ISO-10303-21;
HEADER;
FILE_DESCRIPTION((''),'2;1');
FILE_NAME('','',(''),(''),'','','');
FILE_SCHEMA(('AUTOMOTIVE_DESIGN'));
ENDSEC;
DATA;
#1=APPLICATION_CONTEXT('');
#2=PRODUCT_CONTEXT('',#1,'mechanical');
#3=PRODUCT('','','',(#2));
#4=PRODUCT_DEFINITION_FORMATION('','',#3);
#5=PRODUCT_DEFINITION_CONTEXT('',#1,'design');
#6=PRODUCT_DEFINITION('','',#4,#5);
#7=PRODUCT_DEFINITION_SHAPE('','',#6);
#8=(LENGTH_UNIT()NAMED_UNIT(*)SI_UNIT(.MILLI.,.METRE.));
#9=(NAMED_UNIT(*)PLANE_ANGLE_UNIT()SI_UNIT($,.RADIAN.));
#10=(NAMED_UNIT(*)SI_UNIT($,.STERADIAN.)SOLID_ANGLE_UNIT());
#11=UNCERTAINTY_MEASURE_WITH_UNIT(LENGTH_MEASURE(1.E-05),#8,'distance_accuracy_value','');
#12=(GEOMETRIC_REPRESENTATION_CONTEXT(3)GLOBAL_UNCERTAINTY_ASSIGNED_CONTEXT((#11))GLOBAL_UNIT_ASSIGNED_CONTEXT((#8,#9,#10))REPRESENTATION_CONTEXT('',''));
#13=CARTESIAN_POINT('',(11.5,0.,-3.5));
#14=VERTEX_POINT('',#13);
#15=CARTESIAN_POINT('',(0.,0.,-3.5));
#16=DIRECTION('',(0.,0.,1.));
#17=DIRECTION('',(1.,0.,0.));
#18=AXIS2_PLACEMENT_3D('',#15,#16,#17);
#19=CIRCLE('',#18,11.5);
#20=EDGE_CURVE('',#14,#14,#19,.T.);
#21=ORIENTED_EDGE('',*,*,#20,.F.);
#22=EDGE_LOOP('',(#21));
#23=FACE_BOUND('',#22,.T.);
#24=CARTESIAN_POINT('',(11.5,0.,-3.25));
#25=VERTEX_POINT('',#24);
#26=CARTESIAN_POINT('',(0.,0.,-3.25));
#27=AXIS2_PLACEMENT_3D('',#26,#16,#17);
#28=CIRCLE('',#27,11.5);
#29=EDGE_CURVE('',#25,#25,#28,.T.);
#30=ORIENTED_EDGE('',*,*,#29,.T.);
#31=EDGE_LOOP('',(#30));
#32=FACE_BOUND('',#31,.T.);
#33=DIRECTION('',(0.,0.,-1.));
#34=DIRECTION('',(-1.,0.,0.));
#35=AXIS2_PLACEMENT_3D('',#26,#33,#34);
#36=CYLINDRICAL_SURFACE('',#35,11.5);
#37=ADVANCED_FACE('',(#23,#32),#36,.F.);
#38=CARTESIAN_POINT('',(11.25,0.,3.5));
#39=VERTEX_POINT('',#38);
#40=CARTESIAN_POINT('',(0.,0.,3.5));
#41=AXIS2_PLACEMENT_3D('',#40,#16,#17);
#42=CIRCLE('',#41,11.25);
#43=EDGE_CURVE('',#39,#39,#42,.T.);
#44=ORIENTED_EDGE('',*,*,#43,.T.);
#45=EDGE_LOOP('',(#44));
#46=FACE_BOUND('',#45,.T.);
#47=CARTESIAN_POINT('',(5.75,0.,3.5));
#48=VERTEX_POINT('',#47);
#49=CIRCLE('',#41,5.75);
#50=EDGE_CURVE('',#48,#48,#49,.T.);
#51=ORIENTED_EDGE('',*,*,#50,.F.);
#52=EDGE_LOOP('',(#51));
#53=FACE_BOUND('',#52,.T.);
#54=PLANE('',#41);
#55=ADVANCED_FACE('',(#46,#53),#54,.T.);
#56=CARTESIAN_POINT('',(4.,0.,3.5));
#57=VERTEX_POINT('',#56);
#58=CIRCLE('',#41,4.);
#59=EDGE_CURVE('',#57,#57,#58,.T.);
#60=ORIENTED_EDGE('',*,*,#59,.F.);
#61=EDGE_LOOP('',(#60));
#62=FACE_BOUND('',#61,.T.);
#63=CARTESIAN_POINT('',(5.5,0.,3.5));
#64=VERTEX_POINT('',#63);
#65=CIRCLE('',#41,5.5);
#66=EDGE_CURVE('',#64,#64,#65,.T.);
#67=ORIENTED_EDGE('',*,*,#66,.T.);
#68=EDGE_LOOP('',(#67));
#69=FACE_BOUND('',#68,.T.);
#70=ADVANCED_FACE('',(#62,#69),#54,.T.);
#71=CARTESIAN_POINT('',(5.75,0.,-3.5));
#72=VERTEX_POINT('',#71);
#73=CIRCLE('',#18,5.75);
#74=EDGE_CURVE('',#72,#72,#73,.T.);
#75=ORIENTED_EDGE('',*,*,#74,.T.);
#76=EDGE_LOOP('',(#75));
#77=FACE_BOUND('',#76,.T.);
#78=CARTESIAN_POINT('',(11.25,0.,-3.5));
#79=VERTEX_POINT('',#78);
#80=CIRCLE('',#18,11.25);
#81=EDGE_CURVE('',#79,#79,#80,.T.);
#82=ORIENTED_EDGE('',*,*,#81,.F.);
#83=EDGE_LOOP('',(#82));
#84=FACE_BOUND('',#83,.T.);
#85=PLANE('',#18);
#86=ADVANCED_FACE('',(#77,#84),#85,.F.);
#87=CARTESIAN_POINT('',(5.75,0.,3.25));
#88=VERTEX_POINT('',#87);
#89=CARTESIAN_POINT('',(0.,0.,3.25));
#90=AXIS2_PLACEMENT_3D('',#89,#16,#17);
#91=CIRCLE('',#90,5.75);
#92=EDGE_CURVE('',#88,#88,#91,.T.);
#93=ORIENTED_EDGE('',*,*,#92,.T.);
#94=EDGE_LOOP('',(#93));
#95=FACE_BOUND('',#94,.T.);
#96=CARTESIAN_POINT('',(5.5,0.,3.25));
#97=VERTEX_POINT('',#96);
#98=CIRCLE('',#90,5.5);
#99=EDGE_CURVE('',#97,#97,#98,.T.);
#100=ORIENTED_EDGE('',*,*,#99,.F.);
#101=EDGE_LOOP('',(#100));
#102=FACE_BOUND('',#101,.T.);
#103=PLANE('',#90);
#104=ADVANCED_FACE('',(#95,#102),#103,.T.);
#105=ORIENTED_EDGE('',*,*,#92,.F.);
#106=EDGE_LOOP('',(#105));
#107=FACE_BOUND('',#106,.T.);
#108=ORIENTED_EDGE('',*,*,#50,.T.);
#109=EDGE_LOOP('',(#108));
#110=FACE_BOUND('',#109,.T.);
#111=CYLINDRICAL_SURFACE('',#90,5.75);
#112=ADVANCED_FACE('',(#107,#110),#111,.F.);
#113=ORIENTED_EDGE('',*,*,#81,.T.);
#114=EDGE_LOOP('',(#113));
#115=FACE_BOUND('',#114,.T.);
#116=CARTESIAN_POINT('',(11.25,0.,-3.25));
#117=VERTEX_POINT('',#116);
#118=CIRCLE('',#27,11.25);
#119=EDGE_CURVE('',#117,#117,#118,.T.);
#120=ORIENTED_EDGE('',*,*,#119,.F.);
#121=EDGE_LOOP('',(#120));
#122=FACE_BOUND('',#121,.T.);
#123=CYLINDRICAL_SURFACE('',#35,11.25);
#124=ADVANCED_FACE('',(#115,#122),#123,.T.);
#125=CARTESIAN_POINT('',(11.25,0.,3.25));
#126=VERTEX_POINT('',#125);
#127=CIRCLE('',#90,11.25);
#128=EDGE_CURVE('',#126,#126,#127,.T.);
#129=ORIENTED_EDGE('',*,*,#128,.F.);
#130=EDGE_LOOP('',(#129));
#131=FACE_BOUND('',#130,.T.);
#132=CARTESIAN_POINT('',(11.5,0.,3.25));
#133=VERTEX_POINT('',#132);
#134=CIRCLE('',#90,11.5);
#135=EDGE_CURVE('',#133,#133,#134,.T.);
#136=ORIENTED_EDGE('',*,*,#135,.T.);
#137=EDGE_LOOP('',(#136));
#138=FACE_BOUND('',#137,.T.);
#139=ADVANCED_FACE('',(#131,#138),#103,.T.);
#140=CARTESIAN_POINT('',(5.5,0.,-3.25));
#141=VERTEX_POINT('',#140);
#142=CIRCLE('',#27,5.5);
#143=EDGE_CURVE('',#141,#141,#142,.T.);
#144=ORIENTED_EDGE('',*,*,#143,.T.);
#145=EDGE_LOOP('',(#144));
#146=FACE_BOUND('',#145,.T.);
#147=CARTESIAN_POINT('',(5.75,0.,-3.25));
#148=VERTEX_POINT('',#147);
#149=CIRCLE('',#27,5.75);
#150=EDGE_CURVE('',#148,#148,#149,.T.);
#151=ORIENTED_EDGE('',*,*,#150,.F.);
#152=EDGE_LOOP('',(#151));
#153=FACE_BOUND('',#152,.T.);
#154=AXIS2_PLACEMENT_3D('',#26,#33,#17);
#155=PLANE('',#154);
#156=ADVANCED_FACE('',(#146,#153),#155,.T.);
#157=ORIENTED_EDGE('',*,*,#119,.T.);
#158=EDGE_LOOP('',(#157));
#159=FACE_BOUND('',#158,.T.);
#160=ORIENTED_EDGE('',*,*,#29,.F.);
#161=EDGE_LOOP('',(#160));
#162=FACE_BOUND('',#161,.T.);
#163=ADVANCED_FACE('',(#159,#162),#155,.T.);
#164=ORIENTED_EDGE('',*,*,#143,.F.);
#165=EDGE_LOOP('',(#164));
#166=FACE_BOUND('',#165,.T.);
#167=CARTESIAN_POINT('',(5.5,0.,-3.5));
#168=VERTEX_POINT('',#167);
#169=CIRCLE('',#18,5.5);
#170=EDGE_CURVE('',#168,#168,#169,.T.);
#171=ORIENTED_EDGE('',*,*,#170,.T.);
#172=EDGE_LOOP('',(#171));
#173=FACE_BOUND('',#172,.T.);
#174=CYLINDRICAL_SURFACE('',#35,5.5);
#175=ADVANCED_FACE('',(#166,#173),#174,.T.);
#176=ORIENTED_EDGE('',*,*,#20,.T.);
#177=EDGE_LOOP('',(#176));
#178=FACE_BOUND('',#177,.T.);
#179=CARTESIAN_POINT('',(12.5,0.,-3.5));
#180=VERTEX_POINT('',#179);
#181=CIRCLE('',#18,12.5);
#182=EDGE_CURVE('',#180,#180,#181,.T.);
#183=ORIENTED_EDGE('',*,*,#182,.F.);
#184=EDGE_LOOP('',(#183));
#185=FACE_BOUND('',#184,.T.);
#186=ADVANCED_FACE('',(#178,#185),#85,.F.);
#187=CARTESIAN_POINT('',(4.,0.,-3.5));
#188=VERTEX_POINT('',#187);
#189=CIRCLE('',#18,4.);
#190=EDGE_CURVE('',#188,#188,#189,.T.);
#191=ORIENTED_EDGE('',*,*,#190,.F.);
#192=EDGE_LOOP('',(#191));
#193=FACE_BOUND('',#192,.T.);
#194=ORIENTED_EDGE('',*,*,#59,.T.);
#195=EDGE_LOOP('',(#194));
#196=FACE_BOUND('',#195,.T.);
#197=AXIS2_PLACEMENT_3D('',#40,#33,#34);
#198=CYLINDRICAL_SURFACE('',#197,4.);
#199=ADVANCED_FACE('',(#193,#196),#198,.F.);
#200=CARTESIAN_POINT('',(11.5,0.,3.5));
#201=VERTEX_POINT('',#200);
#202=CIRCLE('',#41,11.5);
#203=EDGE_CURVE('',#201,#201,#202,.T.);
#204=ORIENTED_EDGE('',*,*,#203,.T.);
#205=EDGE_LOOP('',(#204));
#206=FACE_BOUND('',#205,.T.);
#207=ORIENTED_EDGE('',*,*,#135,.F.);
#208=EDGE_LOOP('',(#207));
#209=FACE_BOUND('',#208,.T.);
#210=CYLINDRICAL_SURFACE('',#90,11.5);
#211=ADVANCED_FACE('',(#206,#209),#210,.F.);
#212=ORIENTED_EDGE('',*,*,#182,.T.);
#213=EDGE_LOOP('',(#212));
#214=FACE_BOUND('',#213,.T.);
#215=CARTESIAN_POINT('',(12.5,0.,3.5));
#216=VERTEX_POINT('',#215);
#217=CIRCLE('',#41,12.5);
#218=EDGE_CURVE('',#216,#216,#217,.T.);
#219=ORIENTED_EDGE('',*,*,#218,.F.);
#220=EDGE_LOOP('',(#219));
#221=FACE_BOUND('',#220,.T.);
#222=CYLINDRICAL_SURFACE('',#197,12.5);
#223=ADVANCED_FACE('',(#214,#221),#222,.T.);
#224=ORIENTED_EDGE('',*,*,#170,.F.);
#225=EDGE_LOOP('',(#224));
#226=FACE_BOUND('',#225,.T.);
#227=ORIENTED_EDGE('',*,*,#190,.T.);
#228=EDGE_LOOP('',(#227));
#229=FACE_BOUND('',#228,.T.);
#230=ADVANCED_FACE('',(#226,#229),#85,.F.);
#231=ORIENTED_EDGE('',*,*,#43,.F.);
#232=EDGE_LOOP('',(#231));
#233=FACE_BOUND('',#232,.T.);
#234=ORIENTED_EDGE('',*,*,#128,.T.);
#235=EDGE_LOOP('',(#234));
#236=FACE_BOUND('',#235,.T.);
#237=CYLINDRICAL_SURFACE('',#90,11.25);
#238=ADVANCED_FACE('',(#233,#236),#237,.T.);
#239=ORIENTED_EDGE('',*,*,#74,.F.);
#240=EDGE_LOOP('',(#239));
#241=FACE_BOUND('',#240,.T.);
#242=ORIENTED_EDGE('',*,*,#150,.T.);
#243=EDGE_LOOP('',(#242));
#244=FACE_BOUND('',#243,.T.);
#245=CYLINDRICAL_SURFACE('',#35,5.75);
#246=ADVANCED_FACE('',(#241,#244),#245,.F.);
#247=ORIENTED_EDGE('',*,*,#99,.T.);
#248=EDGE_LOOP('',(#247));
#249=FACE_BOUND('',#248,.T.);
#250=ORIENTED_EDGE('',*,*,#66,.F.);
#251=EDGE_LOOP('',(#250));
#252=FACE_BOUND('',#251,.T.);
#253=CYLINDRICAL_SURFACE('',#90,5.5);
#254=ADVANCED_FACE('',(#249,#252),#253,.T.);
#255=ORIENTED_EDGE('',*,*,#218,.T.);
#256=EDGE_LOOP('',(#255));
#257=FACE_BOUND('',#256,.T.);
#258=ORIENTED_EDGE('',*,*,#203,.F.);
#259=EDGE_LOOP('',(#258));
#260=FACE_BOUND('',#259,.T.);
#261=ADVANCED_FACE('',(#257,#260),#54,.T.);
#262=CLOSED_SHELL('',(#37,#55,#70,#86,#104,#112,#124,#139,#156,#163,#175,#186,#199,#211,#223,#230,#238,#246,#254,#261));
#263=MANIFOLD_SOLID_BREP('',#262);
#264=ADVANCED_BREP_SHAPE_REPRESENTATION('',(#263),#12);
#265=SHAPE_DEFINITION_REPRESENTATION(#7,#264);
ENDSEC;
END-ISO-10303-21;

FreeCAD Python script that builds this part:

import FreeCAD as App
import Part
import Sketcher
from FreeCAD import Vector

doc = App.newDocument("Part")
body = doc.addObject("PartDesign::Body", "Body")

# Sketch on XY plane
sketch1 = body.newObject("Sketcher::SketchObject", "Sketch")
sketch1.AttachmentSupport = (doc.getObject("XY_Plane"), [""])
sketch1.MapMode = "FlatFace"
sketch1.addGeometry(Part.Circle(Vector(0, 0, 0), Vector(0, 0, 1), 12.5), False)
sketch1.addGeometry(Part.Circle(Vector(0, 0, 0), Vector(0, 0, 1), 4), False)
sketch1.addConstraint(Sketcher.Constraint("Coincident", 0, 3, -1, 1))
sketch1.addConstraint(Sketcher.Constraint("Coincident", 1, 3, -1, 1))
sketch1.addConstraint(Sketcher.Constraint("Diameter", 0, 25.0))
sketch1.addConstraint(Sketcher.Constraint("Diameter", 1, 8.0))
pad1 = body.newObject("PartDesign::Pad", "Pad")
pad1.Profile = sketch1
pad1.Length = 7
pad1.Midplane = True

# Sketch on XY plane
sketch2 = body.newObject("Sketcher::SketchObject", "Sketch001")
sketch2.AttachmentSupport = (doc.getObject("XY_Plane"), [""])
sketch2.MapMode = "FlatFace"
sketch2.AttachmentOffset = App.Placement(Vector(0, 0, 3.5), App.Rotation())
sketch2.addGeometry(Part.Circle(Vector(0, 0, 0), Vector(0, 0, 1), 12), False)
sketch2.addGeometry(Part.Circle(Vector(0, 0, 0), Vector(0, 0, 1), 11), False)
sketch2.addGeometry(Part.Circle(Vector(0, 0, 0), Vector(0, 0, 1), 6), False)
sketch2.addGeometry(Part.Circle(Vector(0, 0, 0), Vector(0, 0, 1), 6), False)
sketch2.addConstraint(Sketcher.Constraint("Coincident", 0, 3, -1, 1))
sketch2.addConstraint(Sketcher.Constraint("Coincident", 1, 3, -1, 1))
sketch2.addConstraint(Sketcher.Constraint("Coincident", 2, 3, -1, 1))
sketch2.addConstraint(Sketcher.Constraint("Coincident", 3, 3, -1, 1))
sketch2.addConstraint(Sketcher.Constraint("Diameter", 0, 23.0))
sketch2.addConstraint(Sketcher.Constraint("Diameter", 3, 11.0))
sketch2.addConstraint(Sketcher.Constraint("Diameter", 1, 22.5))
sketch2.addConstraint(Sketcher.Constraint("Diameter", 2, 11.5))
pocket1 = body.newObject("PartDesign::Pocket", "Pocket")
pocket1.Profile = sketch2
pocket1.Length = 0.25
doc.recompute()

mirrored = body.newObject("PartDesign::Mirrored", "Mirrored")
mirrored.Originals = [pocket1]
mirrored.MirrorPlane = (doc.getObject("XY_Plane"), [""])
body.Tip = mirrored

doc.recompute()
